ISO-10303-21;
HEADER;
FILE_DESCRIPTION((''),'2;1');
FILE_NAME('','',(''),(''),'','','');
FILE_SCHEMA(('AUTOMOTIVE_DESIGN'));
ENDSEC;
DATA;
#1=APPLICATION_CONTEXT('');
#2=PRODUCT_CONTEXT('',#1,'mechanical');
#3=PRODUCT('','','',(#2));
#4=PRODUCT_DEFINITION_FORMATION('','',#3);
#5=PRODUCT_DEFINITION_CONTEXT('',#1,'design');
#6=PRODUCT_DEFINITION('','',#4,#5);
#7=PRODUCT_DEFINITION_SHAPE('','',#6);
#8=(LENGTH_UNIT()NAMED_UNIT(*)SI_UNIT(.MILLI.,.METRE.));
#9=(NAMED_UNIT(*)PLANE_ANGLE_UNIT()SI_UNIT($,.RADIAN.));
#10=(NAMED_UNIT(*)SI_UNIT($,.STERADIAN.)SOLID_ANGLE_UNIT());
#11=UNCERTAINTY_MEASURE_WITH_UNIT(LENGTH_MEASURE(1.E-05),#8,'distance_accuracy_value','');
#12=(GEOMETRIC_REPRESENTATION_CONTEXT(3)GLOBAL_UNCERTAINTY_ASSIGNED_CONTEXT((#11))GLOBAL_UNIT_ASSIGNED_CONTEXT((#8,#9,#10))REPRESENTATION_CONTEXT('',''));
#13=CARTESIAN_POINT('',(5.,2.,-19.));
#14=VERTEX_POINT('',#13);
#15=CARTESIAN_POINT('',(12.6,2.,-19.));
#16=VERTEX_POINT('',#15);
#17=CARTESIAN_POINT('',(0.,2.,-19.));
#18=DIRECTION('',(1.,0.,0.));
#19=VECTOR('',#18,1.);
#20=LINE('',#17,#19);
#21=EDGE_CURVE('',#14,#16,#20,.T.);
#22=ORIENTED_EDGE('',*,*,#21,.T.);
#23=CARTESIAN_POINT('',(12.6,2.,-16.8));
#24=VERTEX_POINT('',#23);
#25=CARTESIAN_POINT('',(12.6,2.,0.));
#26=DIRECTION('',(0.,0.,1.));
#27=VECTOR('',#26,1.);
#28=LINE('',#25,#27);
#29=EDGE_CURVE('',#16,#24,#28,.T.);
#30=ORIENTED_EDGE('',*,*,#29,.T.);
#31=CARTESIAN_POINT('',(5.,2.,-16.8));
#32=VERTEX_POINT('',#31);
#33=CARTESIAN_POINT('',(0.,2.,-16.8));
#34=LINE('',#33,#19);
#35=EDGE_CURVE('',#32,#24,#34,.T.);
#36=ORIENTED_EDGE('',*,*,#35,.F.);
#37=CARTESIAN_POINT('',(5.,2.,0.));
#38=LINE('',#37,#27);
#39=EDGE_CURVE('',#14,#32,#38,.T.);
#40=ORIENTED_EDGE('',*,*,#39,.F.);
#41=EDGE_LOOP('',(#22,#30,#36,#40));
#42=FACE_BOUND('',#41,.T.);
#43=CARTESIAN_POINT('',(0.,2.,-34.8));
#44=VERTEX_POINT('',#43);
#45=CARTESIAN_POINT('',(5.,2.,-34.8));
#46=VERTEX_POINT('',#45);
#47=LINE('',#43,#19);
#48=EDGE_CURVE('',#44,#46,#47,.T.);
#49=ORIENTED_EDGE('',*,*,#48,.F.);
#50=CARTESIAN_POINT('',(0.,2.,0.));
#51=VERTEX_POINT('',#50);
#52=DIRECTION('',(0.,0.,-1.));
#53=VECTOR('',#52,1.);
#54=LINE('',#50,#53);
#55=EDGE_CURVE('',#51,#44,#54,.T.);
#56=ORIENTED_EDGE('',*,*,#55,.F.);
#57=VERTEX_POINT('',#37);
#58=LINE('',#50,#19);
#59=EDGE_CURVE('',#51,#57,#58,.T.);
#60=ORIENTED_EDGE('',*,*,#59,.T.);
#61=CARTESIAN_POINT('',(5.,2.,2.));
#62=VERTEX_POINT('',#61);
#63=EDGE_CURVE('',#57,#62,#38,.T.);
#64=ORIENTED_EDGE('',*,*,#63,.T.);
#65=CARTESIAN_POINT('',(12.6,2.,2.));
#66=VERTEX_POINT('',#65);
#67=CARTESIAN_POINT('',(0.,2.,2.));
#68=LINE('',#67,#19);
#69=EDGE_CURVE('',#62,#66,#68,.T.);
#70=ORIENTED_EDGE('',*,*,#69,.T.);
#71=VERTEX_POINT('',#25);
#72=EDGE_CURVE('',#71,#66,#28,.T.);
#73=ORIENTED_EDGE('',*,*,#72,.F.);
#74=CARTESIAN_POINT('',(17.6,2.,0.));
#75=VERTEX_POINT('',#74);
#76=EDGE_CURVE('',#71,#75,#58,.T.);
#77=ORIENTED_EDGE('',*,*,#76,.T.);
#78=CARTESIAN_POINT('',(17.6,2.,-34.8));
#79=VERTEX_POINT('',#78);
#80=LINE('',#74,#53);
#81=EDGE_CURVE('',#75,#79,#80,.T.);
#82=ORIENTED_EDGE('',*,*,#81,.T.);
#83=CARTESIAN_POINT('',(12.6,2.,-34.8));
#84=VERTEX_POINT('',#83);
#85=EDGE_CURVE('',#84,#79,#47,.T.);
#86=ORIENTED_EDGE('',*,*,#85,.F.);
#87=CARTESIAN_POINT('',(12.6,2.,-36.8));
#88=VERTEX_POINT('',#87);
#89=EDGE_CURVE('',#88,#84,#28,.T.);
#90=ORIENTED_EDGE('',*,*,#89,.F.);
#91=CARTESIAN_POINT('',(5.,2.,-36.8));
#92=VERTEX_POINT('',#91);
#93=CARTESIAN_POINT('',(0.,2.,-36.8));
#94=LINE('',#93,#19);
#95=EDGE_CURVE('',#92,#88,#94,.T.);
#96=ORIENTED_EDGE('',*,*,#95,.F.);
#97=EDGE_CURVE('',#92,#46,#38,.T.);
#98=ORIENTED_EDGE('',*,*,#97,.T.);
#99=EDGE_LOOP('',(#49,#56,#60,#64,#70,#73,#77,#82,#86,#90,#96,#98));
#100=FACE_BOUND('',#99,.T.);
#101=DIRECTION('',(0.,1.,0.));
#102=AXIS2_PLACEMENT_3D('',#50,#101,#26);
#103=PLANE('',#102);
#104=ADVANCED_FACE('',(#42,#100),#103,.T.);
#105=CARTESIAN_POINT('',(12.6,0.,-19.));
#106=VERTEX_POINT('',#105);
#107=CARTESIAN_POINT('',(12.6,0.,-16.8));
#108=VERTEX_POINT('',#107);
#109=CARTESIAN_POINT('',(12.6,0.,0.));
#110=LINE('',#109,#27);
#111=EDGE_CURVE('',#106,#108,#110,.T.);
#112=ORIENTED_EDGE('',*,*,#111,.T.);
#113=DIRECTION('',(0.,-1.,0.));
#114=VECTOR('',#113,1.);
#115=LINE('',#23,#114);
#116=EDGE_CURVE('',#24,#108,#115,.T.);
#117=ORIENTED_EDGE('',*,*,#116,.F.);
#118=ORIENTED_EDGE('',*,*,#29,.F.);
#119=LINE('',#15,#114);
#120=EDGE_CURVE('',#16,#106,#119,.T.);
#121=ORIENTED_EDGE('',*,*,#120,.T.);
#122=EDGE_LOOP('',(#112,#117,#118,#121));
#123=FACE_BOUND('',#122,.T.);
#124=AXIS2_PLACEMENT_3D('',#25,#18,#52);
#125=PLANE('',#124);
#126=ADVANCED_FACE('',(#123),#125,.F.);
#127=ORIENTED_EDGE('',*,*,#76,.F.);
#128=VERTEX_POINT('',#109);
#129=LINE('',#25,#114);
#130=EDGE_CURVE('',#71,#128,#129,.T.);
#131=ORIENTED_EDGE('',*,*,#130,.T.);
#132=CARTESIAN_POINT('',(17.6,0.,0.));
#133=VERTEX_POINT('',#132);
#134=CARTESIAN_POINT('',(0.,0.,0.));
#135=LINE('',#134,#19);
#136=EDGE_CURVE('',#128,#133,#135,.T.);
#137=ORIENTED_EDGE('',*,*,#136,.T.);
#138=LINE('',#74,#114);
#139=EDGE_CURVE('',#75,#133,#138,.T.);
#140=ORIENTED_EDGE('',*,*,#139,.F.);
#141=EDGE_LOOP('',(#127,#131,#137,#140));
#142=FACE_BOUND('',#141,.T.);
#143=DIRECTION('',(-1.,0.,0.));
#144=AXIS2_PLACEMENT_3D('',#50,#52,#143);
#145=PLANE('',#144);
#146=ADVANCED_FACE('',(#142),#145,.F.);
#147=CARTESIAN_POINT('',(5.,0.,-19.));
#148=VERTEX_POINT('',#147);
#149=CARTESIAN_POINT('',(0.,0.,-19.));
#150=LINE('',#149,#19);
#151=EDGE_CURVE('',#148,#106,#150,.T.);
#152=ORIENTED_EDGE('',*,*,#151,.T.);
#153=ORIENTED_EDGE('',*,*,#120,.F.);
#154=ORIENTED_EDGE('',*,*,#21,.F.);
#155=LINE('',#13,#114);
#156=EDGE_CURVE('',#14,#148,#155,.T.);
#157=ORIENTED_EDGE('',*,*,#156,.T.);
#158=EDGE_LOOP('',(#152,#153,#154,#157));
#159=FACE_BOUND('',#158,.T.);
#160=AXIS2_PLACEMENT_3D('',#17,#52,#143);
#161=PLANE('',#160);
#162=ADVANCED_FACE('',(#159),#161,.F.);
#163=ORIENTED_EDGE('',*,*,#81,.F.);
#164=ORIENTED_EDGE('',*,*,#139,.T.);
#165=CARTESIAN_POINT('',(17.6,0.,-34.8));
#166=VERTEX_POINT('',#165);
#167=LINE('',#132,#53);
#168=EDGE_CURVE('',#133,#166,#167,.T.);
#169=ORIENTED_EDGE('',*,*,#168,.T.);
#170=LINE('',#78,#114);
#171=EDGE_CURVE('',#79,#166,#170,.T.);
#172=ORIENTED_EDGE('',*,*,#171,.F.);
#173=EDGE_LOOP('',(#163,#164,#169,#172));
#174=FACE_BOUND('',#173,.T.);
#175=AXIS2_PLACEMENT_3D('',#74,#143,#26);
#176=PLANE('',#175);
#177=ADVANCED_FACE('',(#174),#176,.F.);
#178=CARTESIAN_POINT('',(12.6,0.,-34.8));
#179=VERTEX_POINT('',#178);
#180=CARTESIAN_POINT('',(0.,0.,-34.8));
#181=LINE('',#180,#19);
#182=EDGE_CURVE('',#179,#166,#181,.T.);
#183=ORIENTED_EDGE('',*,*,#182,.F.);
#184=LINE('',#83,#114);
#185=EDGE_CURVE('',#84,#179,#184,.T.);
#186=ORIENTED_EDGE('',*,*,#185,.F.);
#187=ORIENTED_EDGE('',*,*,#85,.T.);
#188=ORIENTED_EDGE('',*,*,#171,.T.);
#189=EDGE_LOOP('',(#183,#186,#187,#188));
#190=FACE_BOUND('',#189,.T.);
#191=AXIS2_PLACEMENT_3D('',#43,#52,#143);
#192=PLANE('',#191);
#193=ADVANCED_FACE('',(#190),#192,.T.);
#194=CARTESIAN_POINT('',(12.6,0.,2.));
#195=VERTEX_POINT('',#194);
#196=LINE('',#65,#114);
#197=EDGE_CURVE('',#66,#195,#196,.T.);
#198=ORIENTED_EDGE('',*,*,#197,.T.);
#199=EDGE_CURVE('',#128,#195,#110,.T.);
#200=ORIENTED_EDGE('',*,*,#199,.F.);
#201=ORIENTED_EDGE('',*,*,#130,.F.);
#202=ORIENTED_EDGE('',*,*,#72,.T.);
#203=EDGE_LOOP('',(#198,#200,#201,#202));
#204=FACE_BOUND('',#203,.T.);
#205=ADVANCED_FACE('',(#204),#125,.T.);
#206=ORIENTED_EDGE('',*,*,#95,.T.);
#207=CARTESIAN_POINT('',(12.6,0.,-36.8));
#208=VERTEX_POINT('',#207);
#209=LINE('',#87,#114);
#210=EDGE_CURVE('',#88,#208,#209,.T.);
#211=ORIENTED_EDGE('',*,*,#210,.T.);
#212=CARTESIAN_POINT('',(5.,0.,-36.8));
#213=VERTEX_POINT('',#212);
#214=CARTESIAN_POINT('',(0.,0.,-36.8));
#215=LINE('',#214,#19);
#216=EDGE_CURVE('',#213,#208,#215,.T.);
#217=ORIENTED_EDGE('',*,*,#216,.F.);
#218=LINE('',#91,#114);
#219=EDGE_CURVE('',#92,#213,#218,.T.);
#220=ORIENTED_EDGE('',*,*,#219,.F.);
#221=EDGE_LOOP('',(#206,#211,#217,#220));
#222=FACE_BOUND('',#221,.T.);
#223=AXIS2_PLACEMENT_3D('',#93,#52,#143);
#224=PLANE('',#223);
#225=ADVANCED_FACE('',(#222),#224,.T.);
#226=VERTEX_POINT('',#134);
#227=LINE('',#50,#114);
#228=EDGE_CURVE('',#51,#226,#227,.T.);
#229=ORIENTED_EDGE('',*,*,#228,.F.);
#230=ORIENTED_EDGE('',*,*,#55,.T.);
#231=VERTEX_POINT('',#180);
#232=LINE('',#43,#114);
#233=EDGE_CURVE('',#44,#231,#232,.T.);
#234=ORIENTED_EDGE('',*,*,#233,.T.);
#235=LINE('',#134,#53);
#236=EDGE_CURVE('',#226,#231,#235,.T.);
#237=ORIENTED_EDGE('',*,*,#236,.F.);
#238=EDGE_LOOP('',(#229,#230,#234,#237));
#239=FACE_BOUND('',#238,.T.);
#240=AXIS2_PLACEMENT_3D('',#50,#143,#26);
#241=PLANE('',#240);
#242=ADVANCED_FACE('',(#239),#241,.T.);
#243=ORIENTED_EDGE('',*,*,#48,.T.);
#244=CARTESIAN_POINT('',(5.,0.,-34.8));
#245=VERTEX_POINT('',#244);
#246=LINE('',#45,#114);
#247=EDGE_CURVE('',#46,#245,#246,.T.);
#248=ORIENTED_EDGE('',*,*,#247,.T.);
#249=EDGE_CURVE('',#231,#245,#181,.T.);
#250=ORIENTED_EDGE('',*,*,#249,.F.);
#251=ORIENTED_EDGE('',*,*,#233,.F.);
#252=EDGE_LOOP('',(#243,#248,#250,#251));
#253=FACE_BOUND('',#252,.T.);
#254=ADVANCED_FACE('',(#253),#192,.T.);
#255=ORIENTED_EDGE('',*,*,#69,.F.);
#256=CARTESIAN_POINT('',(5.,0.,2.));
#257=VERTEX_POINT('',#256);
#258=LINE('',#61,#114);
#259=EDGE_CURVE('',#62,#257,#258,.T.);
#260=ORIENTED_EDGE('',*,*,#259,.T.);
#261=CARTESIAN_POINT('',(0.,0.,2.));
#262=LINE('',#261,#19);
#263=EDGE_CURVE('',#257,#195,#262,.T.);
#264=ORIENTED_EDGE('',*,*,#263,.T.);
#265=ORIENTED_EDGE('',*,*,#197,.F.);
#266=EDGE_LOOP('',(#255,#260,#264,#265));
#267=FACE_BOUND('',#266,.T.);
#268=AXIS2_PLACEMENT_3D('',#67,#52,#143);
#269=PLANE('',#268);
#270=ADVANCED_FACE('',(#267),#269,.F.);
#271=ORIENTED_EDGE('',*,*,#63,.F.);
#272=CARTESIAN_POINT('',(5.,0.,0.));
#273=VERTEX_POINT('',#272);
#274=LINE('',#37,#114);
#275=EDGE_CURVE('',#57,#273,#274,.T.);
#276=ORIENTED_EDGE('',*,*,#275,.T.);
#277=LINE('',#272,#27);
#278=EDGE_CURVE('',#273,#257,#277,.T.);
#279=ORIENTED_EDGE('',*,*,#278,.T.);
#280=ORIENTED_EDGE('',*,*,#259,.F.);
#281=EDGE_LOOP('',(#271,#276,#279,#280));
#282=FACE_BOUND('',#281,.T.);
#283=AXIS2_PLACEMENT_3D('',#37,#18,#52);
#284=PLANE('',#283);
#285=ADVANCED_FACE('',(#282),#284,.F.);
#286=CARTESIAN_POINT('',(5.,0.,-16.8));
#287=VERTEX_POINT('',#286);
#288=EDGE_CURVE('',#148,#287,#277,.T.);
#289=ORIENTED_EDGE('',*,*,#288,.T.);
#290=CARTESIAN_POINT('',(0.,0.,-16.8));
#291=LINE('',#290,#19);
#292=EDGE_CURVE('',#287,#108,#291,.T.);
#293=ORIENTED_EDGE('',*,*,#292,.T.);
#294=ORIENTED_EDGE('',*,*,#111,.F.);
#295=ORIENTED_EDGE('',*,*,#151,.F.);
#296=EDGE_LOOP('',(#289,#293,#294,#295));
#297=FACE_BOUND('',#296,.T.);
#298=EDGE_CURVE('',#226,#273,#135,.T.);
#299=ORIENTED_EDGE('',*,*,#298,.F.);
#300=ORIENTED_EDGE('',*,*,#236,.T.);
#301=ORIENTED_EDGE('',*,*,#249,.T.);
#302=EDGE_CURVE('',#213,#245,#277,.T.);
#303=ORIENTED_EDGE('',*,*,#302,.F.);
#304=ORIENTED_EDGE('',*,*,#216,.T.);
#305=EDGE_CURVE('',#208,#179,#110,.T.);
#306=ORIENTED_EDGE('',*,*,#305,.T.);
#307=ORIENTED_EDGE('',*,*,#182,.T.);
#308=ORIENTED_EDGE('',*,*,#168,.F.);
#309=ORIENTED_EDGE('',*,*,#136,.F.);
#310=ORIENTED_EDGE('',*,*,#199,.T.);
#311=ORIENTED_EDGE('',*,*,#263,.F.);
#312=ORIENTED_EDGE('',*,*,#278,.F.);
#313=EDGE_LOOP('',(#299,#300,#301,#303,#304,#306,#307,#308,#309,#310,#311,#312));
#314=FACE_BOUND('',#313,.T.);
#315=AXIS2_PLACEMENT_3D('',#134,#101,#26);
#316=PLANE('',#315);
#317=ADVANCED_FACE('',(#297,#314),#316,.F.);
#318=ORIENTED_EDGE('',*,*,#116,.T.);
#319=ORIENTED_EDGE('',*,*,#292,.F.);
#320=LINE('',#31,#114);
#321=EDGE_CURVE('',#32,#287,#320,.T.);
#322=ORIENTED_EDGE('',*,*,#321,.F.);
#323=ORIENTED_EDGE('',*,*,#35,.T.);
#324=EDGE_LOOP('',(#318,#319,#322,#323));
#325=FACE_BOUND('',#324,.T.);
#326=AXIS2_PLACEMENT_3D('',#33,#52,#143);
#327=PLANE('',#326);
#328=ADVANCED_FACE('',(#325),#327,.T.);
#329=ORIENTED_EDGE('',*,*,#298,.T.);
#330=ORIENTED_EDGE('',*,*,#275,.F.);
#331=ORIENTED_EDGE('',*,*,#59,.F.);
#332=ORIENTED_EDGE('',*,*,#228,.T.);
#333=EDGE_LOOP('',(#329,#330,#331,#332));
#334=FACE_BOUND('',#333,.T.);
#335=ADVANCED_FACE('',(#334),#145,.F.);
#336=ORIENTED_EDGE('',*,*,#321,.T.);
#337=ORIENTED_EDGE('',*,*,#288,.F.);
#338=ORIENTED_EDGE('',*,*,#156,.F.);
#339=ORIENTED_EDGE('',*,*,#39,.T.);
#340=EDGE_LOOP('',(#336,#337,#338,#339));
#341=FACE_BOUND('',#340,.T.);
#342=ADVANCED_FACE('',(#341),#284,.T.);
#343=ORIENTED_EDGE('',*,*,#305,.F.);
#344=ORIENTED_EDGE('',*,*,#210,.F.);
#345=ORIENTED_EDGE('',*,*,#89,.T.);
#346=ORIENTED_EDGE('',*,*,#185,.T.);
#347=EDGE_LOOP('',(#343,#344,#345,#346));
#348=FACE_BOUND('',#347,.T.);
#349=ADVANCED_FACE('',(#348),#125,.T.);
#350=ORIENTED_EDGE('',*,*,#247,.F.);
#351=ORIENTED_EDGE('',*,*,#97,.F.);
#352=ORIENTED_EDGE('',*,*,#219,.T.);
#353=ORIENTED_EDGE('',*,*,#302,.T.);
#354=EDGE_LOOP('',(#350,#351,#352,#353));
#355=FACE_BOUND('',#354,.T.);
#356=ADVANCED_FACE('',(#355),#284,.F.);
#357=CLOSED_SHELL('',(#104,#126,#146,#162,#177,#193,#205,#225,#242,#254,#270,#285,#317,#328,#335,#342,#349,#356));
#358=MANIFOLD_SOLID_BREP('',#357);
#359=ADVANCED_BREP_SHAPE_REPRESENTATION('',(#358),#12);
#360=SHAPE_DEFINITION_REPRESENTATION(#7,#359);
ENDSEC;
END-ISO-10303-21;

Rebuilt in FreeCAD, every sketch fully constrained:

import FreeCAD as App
import Part
import Sketcher


def add_polygon(sketch, points):
    """Adds a closed chain of lines whose ends are joined by coincident constraints."""
    first, n = sketch.GeometryCount, len(points)
    for a, b in zip(points, points[1:] + points[:1]):
        sketch.addGeometry(Part.LineSegment(App.Vector(*a, 0), App.Vector(*b, 0)), False)
    for i in range(n):
        sketch.addConstraint(Sketcher.Constraint("Coincident", first + i, 2, first + (i + 1) % n, 1))

doc = App.newDocument("Part")
body = doc.addObject("PartDesign::Body", "Body")

# Sketch on XZ plane
sketch1 = body.newObject("Sketcher::SketchObject", "Sketch")
sketch1.AttachmentSupport = (doc.getObject("XZ_Plane"), [""])
sketch1.MapMode = "FlatFace"
add_polygon(sketch1, [(0, -34.8), (0, 0), (5, 0), (5, 2), (12.6, 2), (12.6, 0), (17.6, 0), (17.6, -34.8), (12.6, -34.8), (12.6, -36.8), (5, -36.8), (5, -34.8)])  # lines 0-11
add_polygon(sketch1, [(12.6, -16.8), (5, -16.8), (5, -19), (12.6, -19)])  # lines 12-15
sketch1.addConstraint(Sketcher.Constraint("Vertical", 0))
sketch1.addConstraint(Sketcher.Constraint("Horizontal", 1))
sketch1.addConstraint(Sketcher.Constraint("Vertical", 2))
sketch1.addConstraint(Sketcher.Constraint("Horizontal", 3))
sketch1.addConstraint(Sketcher.Constraint("Vertical", 4))
sketch1.addConstraint(Sketcher.Constraint("Horizontal", 5))
sketch1.addConstraint(Sketcher.Constraint("Vertical", 6))
sketch1.addConstraint(Sketcher.Constraint("Horizontal", 7))
sketch1.addConstraint(Sketcher.Constraint("Vertical", 8))
sketch1.addConstraint(Sketcher.Constraint("Horizontal", 9))
sketch1.addConstraint(Sketcher.Constraint("Vertical", 10))
sketch1.addConstraint(Sketcher.Constraint("Horizontal", 11))
sketch1.addConstraint(Sketcher.Constraint("Horizontal", 12))
sketch1.addConstraint(Sketcher.Constraint("Vertical", 13))
sketch1.addConstraint(Sketcher.Constraint("Horizontal", 14))
sketch1.addConstraint(Sketcher.Constraint("Vertical", 15))
sketch1.addConstraint(Sketcher.Constraint("Coincident", 0, 2, -1, 1))
sketch1.addConstraint(Sketcher.Constraint("PointOnObject", 4, 2, -1))
sketch1.addConstraint(Sketcher.Constraint("Horizontal", 7, 2, 10, 2))
sketch1.addConstraint(Sketcher.Constraint("Vertical", 4, 2, 7, 2))
sketch1.addConstraint(Sketcher.Constraint("Vertical", 2, 2, 9, 2))
sketch1.addConstraint(Sketcher.Constraint("Vertical", 10, 2, 12, 2))
sketch1.addConstraint(Sketcher.Constraint("Vertical", 8, 2, 14, 2))
sketch1.addConstraint(Sketcher.Constraint("Equal", 1, 5))
sketch1.addConstraint(Sketcher.Constraint("Equal", 4, 8))
sketch1.addConstraint(Sketcher.Constraint("DistanceX", 1, 1, 1, 2, 5.0))
sketch1.addConstraint(Sketcher.Constraint("DistanceY", 2, 1, 2, 2, 2.0))
sketch1.addConstraint(Sketcher.Constraint("DistanceX", 3, 1, 3, 2, 7.6))
sketch1.addConstraint(Sketcher.Constraint("DistanceY", 0, 1, 0, 2, 34.8))
sketch1.addConstraint(Sketcher.Constraint("DistanceY", 13, 2, 13, 1, 2.2))
sketch1.addConstraint(Sketcher.Constraint("DistanceY", 13, 2, -1, 1, 19.0))
pad1 = body.newObject("PartDesign::Pad", "Pad")
pad1.Profile = sketch1
pad1.Length = 2
pad1.Reversed = True

doc.recompute()
